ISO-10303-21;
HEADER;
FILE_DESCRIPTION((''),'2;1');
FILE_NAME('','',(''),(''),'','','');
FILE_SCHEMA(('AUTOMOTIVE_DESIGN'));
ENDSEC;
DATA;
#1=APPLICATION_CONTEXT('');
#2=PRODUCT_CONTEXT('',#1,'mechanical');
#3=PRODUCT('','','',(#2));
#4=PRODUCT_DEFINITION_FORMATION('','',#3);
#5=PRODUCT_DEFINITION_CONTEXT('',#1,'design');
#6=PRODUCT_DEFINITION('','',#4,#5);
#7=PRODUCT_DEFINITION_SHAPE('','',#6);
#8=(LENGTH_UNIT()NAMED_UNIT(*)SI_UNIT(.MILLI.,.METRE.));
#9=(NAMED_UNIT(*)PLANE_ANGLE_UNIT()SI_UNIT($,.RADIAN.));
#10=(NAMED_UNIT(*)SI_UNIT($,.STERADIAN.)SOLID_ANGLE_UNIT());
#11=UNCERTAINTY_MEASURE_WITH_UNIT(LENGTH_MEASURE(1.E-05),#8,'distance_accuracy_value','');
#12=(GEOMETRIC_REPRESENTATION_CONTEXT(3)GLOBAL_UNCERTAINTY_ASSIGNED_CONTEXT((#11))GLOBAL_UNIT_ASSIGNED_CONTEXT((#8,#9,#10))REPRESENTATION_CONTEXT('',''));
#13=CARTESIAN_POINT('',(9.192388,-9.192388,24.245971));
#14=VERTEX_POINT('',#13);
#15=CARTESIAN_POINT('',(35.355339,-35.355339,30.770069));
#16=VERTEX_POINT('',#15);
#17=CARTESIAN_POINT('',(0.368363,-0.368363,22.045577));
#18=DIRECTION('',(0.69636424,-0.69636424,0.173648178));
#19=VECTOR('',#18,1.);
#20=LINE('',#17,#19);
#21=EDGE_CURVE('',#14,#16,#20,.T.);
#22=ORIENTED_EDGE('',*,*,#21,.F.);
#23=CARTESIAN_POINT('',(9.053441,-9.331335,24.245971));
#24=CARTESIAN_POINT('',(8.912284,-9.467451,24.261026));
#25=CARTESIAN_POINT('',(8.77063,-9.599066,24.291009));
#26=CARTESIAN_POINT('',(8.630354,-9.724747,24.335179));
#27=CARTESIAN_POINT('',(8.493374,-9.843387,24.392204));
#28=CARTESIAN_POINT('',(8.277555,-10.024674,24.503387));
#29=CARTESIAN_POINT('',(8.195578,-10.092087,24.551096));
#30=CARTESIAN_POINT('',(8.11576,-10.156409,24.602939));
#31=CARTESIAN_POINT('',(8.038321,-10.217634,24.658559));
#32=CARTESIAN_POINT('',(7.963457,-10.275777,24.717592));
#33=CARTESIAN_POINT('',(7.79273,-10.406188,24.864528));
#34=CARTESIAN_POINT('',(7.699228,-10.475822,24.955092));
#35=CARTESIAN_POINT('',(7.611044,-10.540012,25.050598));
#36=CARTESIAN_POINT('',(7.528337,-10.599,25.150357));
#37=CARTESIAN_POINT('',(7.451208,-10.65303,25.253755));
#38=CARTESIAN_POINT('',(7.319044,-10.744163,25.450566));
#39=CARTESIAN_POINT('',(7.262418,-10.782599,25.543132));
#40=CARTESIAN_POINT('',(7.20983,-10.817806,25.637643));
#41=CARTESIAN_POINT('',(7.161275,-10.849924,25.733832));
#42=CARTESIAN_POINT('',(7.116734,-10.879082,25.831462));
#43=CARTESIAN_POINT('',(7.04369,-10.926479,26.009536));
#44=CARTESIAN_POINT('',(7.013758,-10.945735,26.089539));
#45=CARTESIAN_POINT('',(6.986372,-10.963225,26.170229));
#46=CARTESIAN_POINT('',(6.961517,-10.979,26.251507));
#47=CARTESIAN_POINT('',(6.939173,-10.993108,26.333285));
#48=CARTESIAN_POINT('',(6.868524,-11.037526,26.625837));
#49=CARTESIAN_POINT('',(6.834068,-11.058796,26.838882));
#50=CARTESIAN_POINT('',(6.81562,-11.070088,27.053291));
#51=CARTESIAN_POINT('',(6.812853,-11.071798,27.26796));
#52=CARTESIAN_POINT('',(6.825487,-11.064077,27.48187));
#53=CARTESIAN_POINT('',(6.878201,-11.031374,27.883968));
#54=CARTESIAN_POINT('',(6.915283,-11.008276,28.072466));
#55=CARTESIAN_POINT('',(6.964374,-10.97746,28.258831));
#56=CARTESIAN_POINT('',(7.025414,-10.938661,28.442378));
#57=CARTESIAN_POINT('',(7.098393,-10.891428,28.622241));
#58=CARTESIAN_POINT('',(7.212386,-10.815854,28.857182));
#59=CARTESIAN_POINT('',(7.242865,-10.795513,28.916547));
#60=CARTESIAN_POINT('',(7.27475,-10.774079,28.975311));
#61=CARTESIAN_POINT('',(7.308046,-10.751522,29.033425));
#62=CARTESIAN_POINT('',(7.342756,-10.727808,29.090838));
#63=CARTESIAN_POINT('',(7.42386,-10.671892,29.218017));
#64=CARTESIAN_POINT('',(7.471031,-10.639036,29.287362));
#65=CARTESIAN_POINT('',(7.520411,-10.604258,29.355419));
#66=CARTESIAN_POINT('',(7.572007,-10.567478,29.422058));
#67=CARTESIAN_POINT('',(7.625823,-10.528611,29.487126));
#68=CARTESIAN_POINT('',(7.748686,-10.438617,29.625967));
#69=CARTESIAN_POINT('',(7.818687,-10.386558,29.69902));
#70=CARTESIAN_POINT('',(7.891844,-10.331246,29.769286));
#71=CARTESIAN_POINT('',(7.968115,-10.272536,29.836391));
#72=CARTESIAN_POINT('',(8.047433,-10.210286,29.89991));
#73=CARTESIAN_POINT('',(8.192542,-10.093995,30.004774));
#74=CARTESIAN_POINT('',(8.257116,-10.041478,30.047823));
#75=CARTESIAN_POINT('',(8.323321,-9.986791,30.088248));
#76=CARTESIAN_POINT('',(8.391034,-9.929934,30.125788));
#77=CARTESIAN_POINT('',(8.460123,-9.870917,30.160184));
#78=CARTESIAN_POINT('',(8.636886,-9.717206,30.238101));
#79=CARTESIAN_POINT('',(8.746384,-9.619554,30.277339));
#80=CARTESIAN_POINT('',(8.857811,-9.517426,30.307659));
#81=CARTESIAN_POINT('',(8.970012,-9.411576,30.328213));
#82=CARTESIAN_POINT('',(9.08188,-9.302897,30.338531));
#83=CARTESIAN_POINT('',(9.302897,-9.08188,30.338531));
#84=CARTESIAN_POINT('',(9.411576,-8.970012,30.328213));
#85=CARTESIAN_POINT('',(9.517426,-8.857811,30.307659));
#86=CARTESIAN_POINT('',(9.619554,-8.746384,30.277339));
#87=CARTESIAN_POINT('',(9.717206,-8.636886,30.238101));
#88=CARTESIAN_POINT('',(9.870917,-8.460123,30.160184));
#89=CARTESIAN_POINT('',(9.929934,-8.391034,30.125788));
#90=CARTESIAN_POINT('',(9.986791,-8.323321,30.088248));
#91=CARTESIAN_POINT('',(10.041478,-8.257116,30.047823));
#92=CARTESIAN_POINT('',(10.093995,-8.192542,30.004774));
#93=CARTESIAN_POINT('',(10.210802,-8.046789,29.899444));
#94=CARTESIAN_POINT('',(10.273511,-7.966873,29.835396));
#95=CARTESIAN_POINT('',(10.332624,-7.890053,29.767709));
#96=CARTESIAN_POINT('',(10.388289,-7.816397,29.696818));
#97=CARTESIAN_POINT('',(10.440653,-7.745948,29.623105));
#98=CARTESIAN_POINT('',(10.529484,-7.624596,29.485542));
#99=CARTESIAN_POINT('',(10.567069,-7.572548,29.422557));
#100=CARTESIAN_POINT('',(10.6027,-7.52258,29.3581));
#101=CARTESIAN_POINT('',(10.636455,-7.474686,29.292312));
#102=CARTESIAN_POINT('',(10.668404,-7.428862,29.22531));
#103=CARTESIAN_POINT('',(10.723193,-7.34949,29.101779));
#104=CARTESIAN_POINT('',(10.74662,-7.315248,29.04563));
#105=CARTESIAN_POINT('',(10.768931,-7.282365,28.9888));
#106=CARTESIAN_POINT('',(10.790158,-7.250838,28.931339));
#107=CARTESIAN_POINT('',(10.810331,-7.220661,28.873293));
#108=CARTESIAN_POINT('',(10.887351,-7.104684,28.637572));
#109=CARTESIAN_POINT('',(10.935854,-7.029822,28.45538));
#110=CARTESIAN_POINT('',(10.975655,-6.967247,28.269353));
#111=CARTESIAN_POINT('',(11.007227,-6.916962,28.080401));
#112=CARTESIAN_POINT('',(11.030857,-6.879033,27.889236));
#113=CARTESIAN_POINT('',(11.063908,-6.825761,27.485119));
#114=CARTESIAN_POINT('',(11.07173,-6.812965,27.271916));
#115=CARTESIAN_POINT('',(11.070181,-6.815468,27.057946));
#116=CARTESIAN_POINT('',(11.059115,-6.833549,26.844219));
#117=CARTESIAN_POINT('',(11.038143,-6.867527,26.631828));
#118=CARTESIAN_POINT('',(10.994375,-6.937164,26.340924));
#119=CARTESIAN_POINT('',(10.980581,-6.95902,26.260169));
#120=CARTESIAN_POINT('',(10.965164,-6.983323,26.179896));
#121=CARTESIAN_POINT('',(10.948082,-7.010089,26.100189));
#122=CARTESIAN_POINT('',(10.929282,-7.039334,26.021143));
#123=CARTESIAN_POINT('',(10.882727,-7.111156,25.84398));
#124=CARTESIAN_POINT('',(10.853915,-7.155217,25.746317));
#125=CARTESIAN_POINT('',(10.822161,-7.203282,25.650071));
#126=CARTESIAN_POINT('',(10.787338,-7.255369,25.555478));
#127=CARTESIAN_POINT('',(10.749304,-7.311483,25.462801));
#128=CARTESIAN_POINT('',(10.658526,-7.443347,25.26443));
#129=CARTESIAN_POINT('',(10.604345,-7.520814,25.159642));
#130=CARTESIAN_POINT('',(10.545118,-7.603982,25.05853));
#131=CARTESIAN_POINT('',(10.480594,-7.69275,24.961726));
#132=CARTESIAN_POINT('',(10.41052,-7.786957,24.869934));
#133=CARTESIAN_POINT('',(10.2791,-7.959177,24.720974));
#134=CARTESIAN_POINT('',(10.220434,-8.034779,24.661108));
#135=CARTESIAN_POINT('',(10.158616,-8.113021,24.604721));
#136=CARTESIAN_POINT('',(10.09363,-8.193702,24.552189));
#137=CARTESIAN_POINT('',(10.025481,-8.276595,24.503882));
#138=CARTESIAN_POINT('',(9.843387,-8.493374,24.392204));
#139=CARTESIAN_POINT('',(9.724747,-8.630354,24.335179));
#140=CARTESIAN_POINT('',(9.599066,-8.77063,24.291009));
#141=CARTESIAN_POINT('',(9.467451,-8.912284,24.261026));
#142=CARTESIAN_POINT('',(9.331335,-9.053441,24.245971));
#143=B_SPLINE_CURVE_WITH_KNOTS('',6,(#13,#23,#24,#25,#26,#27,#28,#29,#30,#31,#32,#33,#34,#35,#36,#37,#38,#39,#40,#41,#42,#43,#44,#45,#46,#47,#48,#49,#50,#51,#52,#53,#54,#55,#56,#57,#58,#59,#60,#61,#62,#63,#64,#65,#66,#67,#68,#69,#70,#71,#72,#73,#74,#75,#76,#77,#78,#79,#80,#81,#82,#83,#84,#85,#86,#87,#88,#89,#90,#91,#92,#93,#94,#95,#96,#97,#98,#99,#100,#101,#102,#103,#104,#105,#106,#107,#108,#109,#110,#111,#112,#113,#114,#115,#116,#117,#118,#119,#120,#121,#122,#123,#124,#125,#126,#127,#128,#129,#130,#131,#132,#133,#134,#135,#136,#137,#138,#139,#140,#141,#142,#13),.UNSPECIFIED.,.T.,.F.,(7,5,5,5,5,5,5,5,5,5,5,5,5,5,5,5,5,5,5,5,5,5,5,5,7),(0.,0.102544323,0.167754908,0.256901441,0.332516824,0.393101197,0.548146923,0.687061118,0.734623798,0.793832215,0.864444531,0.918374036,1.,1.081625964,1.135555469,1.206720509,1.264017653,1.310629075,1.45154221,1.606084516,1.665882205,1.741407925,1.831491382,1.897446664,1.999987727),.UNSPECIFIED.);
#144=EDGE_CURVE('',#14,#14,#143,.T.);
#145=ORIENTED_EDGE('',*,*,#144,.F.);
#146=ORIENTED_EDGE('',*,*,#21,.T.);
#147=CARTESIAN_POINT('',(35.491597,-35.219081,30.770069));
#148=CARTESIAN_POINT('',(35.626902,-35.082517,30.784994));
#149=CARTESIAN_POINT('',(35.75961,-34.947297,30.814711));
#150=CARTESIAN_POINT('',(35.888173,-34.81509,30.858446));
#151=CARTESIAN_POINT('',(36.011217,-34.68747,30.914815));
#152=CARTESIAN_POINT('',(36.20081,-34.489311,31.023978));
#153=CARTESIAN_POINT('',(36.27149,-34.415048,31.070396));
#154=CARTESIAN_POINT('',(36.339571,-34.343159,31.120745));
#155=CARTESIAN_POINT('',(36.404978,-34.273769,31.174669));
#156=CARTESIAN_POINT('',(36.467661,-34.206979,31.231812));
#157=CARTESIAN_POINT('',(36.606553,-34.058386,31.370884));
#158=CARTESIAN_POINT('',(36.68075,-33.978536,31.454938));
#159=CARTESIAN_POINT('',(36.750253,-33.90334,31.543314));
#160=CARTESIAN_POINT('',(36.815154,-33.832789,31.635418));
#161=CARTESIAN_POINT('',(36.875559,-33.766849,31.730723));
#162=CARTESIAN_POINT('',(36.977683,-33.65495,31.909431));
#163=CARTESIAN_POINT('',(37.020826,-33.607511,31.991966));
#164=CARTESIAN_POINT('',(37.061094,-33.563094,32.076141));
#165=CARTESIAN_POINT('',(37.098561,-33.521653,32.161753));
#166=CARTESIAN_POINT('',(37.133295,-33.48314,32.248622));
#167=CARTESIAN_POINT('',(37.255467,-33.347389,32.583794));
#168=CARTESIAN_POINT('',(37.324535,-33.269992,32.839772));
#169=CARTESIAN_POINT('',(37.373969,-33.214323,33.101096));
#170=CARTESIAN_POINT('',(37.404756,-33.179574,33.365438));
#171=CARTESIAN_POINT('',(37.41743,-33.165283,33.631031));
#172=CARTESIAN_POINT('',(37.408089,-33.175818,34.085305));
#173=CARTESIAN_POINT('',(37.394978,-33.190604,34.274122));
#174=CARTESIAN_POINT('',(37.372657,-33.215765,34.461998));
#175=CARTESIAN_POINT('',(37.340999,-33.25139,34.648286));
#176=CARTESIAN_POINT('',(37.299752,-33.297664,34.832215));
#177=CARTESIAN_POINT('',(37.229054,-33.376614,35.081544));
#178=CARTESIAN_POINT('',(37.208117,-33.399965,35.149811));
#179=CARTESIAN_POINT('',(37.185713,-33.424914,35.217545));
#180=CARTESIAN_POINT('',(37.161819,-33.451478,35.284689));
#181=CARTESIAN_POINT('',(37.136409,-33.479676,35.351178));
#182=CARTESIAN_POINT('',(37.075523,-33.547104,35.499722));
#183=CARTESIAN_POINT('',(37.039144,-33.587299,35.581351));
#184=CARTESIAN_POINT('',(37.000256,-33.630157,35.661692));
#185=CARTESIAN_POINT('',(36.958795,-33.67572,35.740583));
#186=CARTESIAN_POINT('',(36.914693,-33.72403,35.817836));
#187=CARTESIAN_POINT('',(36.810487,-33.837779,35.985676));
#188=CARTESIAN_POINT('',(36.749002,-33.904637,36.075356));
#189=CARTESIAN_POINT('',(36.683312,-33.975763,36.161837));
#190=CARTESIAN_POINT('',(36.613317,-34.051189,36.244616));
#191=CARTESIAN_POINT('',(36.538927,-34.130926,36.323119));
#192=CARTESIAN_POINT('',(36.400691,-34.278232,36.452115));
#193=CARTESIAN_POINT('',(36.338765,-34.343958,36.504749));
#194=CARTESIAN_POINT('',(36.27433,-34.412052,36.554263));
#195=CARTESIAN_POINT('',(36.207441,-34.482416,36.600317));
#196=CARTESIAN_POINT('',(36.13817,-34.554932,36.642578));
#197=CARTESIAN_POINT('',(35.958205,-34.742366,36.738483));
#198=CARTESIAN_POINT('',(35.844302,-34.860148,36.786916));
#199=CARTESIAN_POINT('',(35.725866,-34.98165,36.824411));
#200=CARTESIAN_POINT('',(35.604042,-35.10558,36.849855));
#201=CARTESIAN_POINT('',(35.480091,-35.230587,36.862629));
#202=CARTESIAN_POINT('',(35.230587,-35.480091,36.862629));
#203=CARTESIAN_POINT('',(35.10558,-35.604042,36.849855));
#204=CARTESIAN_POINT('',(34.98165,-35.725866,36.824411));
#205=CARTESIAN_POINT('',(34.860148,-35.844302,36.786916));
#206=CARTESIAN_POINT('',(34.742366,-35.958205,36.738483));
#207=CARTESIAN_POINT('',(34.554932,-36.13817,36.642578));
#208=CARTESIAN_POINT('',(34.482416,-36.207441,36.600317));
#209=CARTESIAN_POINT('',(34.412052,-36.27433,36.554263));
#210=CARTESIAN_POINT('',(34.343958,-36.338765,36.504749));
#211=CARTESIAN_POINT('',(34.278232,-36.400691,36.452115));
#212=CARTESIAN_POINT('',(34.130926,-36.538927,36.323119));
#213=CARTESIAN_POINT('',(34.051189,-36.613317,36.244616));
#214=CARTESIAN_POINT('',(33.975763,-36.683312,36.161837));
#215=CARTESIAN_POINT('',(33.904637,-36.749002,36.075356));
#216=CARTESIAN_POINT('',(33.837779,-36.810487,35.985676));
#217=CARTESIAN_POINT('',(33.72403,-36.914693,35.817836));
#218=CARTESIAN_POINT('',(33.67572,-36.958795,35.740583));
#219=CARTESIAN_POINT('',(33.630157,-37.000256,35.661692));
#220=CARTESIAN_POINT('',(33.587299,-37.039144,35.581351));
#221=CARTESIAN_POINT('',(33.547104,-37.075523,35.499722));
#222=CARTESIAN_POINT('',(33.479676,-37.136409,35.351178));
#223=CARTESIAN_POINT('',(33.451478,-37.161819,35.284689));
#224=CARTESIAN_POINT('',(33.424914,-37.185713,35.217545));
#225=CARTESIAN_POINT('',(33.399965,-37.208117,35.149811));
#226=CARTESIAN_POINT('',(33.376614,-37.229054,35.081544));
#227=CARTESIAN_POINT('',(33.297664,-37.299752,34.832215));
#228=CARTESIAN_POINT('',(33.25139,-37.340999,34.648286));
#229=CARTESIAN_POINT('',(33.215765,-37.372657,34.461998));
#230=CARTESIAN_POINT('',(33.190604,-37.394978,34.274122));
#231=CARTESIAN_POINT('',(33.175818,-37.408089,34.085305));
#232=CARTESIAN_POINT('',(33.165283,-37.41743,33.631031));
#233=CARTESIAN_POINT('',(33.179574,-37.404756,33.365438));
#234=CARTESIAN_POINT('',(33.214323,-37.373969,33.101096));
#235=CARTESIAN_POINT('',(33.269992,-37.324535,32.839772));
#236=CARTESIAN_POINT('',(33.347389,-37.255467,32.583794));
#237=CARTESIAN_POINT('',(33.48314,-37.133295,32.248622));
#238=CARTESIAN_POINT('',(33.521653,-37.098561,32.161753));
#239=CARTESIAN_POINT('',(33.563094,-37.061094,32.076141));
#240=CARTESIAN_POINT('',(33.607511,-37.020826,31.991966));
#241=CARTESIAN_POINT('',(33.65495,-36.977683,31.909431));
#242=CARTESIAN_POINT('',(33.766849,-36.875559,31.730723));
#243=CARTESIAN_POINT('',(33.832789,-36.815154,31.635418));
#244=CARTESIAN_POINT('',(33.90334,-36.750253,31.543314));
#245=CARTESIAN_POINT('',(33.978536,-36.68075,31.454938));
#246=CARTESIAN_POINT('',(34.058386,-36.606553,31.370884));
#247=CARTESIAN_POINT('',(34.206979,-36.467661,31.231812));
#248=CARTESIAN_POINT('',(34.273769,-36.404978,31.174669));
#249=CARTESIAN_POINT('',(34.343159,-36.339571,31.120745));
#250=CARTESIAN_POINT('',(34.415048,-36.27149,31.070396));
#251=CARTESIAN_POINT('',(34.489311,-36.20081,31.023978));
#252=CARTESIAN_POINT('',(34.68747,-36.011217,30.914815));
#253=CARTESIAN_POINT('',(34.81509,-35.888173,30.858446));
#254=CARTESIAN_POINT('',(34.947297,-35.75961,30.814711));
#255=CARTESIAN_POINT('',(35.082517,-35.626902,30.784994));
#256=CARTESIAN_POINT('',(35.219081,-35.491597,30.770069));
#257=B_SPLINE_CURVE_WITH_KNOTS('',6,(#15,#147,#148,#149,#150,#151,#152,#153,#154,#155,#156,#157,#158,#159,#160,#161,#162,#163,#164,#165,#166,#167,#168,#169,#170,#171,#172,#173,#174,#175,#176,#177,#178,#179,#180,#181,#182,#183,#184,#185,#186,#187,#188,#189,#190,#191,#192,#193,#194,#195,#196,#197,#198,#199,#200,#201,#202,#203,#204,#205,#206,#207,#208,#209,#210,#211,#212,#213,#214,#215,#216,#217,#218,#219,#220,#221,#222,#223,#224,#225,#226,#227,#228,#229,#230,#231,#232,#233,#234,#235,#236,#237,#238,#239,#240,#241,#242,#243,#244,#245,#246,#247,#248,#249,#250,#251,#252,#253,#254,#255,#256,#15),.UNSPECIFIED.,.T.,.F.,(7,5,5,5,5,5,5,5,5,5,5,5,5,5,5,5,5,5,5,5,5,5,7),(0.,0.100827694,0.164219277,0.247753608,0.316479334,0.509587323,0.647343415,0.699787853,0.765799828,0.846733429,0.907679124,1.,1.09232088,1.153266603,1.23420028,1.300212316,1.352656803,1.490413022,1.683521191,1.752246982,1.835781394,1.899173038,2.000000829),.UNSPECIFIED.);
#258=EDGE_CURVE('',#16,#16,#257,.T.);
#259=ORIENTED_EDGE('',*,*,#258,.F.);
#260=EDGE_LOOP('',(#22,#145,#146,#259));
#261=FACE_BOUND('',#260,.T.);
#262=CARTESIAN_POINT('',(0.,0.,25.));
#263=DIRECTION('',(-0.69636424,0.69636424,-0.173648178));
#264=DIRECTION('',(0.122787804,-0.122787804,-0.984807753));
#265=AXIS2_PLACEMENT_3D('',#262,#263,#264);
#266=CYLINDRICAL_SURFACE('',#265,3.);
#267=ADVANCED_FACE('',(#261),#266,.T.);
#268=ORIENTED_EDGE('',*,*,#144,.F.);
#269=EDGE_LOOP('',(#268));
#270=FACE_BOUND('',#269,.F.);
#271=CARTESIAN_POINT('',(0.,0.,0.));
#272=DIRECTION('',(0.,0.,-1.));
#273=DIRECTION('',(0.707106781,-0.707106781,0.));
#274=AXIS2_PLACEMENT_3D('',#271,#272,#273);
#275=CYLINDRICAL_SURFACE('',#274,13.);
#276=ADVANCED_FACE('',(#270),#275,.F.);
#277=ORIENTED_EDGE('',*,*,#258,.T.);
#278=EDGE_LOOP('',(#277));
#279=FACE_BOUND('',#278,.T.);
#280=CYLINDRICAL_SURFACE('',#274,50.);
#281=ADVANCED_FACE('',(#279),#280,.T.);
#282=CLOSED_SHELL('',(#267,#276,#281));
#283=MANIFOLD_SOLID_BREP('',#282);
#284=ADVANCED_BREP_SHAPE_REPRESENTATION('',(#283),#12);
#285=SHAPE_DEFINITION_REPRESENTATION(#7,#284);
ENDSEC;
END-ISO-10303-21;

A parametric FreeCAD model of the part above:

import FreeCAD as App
import Part
import Sketcher

doc = App.newDocument("Part")
body = doc.addObject("PartDesign::Body", "Body")

sketch1 = doc.addObject("Sketcher::SketchObject", "Sketch")
body.addObject(sketch1)
sketch1.AttachmentSupport = (doc.XY_Plane, [""])
sketch1.MapMode = "FlatFace"
sketch1.addGeometry(Part.Circle(App.Vector(0, 0, 0), App.Vector(0, 0, 1), 50), False)
sketch1.addConstraint(Sketcher.Constraint("Coincident", 0, 3, -1, 1))
sketch1.addConstraint(Sketcher.Constraint("Diameter", 0, 100.0))
pad1 = doc.addObject("PartDesign::Pad", "Pad")
body.addObject(pad1)
pad1.Profile = sketch1
pad1.Length = 67
body2 = doc.addObject("PartDesign::Body", "Body001")

sketch2 = doc.addObject("Sketcher::SketchObject", "Sketch001")
body2.addObject(sketch2)
sketch2.AttachmentSupport = (doc.getObject("XY_Plane001"), [""])
sketch2.MapMode = "FlatFace"
sketch2.addGeometry(Part.Circle(App.Vector(0, 0, 0), App.Vector(0, 0, 1), 55), False)
sketch2.addConstraint(Sketcher.Constraint("Coincident", 0, 3, -1, 1))
sketch2.addConstraint(Sketcher.Constraint("Diameter", 0, 110.0))
pad2 = doc.addObject("PartDesign::Pad", "Pad001")
body2.addObject(pad2)
pad2.Profile = sketch2
pad2.Length = 67
doc.recompute()

boolean = doc.addObject("PartDesign::Boolean", "Boolean")
body2.addObject(boolean)
boolean.Type = "Cut"
boolean.addObjects([body])
body3 = doc.addObject("PartDesign::Body", "Body002")

sketch3 = doc.addObject("Sketcher::SketchObject", "Sketch002")
body3.addObject(sketch3)
sketch3.AttachmentSupport = (doc.getObject("XY_Plane002"), [""])
sketch3.MapMode = "FlatFace"
sketch3.addGeometry(Part.Circle(App.Vector(0, 0, 0), App.Vector(0, 0, 1), 13), False)
sketch3.addConstraint(Sketcher.Constraint("Coincident", 0, 3, -1, 1))
sketch3.addConstraint(Sketcher.Constraint("Diameter", 0, 26.0))
pad3 = doc.addObject("PartDesign::Pad", "Pad002")
body3.addObject(pad3)
pad3.Profile = sketch3
pad3.Length = 60
body4 = doc.addObject("PartDesign::Body", "Body003")

sketch4 = doc.addObject("Sketcher::SketchObject", "Sketch003")
body4.addObject(sketch4)
sketch4.AttachmentSupport = (doc.getObject("XY_Plane003"), [""])
sketch4.MapMode = "FlatFace"
sketch4.addGeometry(Part.Circle(App.Vector(0, 0, 0), App.Vector(0, 0, 1), 3), False)
sketch4.addConstraint(Sketcher.Constraint("Coincident", 0, 3, -1, 1))
sketch4.addConstraint(Sketcher.Constraint("Diameter", 0, 6.0))
pad4 = doc.addObject("PartDesign::Pad", "Pad003")
body4.addObject(pad4)
pad4.Profile = sketch4
pad4.Length = 54
body5 = doc.addObject("PartDesign::Body", "Body004")
doc.recompute()

body4.Placement = App.Placement(App.Vector(0, 0, 25), App.Rotation(App.Vector(0, 1, 0), 80))
boolean2 = doc.addObject("PartDesign::Boolean", "Boolean001")
body5.addObject(boolean2)
boolean2.Type = "Fuse"
boolean2.addObjects([body4])
doc.recompute()

boolean3 = doc.addObject("PartDesign::Boolean", "Boolean002")
body5.addObject(boolean3)
boolean3.Type = "Cut"
boolean3.addObjects([body3])
doc.recompute()

boolean4 = doc.addObject("PartDesign::Boolean", "Boolean003")
body5.addObject(boolean4)
boolean4.Type = "Cut"
boolean4.addObjects([body2])
body6 = doc.addObject("PartDesign::Body", "Body005")
doc.recompute()

body5.Placement = App.Placement(App.Vector(0, 0, 0), App.Rotation(App.Vector(0, 0, 1), 45))
boolean5 = doc.addObject("PartDesign::Boolean", "Boolean004")
body6.addObject(boolean5)
boolean5.Type = "Fuse"
boolean5.addObjects([body5])
body7 = doc.addObject("PartDesign::Body", "Body006")
doc.recompute()

mirroring = doc.addObject("Part::Mirroring", "Mirroring")
mirroring.Source = body6
mirroring.Base = App.Vector(0, 0, 0)
mirroring.Normal = App.Vector(0, 1, 0)
body7.BaseFeature = mirroring
doc.recompute()
body6.Visibility = False
mirroring.Visibility = False

doc.recompute()
